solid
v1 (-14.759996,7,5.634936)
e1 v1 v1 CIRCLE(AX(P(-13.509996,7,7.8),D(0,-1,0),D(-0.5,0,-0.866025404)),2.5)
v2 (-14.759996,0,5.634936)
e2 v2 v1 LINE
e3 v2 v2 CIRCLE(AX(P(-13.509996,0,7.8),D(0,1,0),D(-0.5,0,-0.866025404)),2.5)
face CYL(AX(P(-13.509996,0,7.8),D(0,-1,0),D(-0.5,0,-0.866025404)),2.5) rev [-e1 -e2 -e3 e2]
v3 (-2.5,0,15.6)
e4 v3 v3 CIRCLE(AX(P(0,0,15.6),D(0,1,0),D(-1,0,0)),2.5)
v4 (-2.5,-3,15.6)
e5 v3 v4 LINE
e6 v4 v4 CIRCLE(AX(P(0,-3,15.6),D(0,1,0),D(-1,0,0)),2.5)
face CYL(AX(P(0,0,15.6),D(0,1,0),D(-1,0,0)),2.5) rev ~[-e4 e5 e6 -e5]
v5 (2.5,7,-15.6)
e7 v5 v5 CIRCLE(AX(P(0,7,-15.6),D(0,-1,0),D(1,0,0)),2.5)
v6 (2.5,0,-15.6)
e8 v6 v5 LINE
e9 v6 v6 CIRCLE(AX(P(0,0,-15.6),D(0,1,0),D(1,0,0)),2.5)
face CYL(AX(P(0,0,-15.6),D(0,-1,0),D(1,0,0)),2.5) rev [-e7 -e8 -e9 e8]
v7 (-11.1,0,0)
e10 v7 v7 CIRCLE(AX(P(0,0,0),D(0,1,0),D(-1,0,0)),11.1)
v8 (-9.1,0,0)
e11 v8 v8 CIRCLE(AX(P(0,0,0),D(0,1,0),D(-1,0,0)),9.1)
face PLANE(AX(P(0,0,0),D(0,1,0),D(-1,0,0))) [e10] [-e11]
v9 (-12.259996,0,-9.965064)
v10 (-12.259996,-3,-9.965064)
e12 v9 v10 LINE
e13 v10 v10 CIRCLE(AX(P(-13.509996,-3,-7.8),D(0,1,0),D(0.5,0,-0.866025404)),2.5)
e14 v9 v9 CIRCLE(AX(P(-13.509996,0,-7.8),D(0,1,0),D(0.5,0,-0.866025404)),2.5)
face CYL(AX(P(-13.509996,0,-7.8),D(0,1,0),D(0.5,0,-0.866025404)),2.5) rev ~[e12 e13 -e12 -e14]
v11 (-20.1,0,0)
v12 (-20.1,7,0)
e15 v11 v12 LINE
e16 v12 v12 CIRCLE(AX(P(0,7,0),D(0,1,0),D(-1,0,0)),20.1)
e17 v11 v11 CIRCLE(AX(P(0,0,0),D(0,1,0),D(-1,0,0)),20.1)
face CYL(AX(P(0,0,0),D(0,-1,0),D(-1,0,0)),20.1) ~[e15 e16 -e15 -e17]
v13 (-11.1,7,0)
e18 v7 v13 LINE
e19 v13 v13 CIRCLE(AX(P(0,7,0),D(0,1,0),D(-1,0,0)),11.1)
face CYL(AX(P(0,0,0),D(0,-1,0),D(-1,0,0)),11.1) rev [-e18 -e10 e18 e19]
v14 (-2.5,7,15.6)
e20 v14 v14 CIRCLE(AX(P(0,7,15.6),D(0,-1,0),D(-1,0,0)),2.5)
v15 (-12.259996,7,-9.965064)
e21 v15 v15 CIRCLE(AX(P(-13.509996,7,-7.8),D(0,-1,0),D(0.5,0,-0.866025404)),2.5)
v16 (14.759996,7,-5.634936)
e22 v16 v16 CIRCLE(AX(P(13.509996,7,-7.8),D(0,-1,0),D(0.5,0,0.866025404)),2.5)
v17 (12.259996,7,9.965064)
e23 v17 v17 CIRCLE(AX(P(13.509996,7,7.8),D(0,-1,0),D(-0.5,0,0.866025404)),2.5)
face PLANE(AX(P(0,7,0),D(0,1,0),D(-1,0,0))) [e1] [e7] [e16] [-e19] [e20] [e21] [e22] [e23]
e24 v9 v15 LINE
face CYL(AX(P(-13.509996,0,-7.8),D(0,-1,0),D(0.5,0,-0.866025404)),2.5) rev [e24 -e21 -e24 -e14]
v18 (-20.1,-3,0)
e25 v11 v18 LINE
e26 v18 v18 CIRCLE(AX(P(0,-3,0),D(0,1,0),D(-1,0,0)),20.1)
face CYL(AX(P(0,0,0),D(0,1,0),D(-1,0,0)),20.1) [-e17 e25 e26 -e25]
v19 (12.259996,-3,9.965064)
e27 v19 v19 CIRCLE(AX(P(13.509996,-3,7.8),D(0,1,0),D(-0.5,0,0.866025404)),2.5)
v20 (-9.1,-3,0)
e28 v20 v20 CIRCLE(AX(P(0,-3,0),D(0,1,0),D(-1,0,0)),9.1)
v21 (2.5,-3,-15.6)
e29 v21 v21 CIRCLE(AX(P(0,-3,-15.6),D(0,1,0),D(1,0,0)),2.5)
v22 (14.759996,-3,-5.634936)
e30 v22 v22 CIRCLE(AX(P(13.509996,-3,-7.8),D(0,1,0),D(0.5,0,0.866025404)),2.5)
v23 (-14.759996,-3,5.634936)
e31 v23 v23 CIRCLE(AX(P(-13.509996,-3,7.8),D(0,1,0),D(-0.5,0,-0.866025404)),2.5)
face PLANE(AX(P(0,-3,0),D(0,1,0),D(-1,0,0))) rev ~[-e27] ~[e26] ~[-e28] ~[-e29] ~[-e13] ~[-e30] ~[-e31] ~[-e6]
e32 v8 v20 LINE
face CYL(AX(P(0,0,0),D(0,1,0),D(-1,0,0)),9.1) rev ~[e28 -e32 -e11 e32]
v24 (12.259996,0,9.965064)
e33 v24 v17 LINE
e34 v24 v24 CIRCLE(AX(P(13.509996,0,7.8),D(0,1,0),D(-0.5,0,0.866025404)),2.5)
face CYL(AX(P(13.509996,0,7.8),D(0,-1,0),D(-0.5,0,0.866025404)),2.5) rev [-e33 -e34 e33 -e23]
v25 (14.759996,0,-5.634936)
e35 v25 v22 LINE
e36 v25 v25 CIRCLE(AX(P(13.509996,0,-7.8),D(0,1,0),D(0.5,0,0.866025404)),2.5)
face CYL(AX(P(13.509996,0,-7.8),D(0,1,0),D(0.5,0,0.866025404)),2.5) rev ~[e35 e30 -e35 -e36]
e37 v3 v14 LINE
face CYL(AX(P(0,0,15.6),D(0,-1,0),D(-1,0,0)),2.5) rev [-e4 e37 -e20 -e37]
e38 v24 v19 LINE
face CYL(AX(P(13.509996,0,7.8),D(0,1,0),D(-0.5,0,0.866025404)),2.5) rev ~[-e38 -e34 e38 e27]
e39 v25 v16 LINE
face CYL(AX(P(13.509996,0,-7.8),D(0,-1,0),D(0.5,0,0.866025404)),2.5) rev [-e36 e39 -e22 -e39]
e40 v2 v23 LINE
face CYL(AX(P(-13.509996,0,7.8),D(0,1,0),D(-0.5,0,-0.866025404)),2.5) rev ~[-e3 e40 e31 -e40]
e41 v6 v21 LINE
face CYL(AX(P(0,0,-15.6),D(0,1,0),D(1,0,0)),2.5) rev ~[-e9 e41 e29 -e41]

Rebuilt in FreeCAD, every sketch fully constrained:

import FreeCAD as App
import Part
import Sketcher
Q = App.Units.Quantity

doc = App.newDocument("Part")
body = doc.addObject("PartDesign::Body", "Body")

# Sketch on XZ plane
sketch1 = doc.addObject("Sketcher::SketchObject", "Sketch")
body.addObject(sketch1)
sketch1.AttachmentSupport = (doc.XZ_Plane, [""])
sketch1.MapMode = "FlatFace"
sketch1.addGeometry(Part.Circle(App.Vector(0, 0, 0), App.Vector(0, 0, 1), 20), False)
sketch1.addGeometry(Part.Circle(App.Vector(0, 0, 0), App.Vector(0, 0, 1), 11), False)
sketch1.addConstraint(Sketcher.Constraint("Coincident", 0, 3, -1, 1))
sketch1.addConstraint(Sketcher.Constraint("Coincident", 1, 3, -1, 1))
sketch1.addConstraint(Sketcher.Constraint("Diameter", 1, Q("22.2 mm")))
sketch1.addConstraint(Sketcher.Constraint("Diameter", 0, Q("40.2 mm")))
pad1 = doc.addObject("PartDesign::Pad", "Pad")
body.addObject(pad1)
pad1.Profile = sketch1
pad1.Length = 7
pad1.Reversed = True

# Sketch on XZ plane
sketch2 = doc.addObject("Sketcher::SketchObject", "Sketch001")
body.addObject(sketch2)
sketch2.AttachmentSupport = (doc.XZ_Plane, [""])
sketch2.MapMode = "FlatFace"
sketch2.addGeometry(Part.Circle(App.Vector(0, 0, 0), App.Vector(0, 0, 1), 20), False)
sketch2.addGeometry(Part.Circle(App.Vector(0, 0, 0), App.Vector(0, 0, 1), 9), False)
sketch2.addConstraint(Sketcher.Constraint("Coincident", 0, 3, -1, 1))
sketch2.addConstraint(Sketcher.Constraint("Coincident", 1, 3, -1, 1))
sketch2.addConstraint(Sketcher.Constraint("Diameter", 1, Q("18.2 mm")))
sketch2.addConstraint(Sketcher.Constraint("Diameter", 0, Q("40.2 mm")))
pad2 = doc.addObject("PartDesign::Pad", "Pad001")
body.addObject(pad2)
pad2.Profile = sketch2
pad2.Length = 3

# Sketch on XZ plane
sketch3 = doc.addObject("Sketcher::SketchObject", "Sketch002")
body.addObject(sketch3)
sketch3.AttachmentSupport = (doc.XZ_Plane, [""])
sketch3.MapMode = "FlatFace"
sketch3.addGeometry(Part.Circle(App.Vector(0, 15.6, 0), App.Vector(0, 0, 1), 2.5), False)
sketch3.addConstraint(Sketcher.Constraint("PointOnObject", 0, 3, -2))
sketch3.addConstraint(Sketcher.Constraint("Diameter", 0, Q("5 mm")))
sketch3.addConstraint(Sketcher.Constraint("DistanceY", -1, 1, 0, 3, Q("15.6 mm")))
pocket1 = doc.addObject("PartDesign::Pocket", "Pocket")
body.addObject(pocket1)
pocket1.Profile = sketch3
pocket1.Type = "ThroughAll"
pocket1.Midplane = True
doc.recompute()

polarpattern = doc.addObject("PartDesign::PolarPattern", "PolarPattern")
body.addObject(polarpattern)
polarpattern.Originals = [pocket1]
polarpattern.Axis = (doc.Y_Axis, [""])
polarpattern.Angle = 360
polarpattern.Occurrences = 6
body.Tip = polarpattern

doc.recompute()
